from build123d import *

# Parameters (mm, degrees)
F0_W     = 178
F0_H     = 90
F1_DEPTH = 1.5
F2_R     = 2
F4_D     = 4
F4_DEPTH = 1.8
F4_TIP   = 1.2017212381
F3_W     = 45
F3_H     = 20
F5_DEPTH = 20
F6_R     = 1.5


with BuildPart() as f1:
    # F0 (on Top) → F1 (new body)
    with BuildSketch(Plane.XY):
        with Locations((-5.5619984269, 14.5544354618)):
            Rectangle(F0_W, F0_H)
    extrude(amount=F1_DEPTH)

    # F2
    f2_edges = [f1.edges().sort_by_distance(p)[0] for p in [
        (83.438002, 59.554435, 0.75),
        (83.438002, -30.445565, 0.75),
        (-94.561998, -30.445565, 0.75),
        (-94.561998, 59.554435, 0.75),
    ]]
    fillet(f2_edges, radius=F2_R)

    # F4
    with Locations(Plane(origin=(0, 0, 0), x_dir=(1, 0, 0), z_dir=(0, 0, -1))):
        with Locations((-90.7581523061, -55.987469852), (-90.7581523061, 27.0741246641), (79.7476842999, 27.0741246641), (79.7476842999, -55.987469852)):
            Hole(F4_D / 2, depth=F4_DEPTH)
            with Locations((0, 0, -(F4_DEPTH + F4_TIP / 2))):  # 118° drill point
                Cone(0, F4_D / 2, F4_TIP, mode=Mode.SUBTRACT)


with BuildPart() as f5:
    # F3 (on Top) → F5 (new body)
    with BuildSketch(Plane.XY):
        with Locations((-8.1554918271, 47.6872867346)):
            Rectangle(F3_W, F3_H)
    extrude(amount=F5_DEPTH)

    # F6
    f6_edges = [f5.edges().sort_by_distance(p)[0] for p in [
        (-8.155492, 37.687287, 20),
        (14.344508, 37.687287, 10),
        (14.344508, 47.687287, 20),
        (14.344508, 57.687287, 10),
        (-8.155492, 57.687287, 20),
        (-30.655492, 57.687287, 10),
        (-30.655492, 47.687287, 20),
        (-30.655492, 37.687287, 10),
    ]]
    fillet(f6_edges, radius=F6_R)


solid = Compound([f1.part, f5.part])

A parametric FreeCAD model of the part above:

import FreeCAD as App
import Part
import Sketcher
from FreeCAD import Vector
Q = App.Units.Quantity


def edges_at(feature, points):
    """Names of the edges that pass closest to the given points."""
    edges = feature.Shape.Edges
    near = lambda p: min(range(len(edges)), key=lambda i: edges[i].distToShape(Part.Vertex(*p))[0])
    return sorted({f"Edge{near(p) + 1}" for p in points})


def add_polygon(sketch, points):
    """Adds a closed chain of lines whose ends are joined by coincident constraints."""
    first, n = sketch.GeometryCount, len(points)
    for a, b in zip(points, points[1:] + points[:1]):
        sketch.addGeometry(Part.LineSegment(App.Vector(*a, 0), App.Vector(*b, 0)), False)
    for i in range(n):
        sketch.addConstraint(Sketcher.Constraint("Coincident", first + i, 2, first + (i + 1) % n, 1))

doc = App.newDocument("Part")
body = doc.addObject("PartDesign::Body", "Body")

sketch1 = doc.addObject("Sketcher::SketchObject", "Sketch")
body.addObject(sketch1)
sketch1.AttachmentSupport = (doc.XY_Plane, [""])
sketch1.MapMode = "FlatFace"
add_polygon(sketch1, [(-95, 60), (-95, -30), (83, -30), (83, 60)])
sketch1.addConstraint(Sketcher.Constraint("Vertical", 0))
sketch1.addConstraint(Sketcher.Constraint("Horizontal", 1))
sketch1.addConstraint(Sketcher.Constraint("Vertical", 2))
sketch1.addConstraint(Sketcher.Constraint("Horizontal", 3))
sketch1.addConstraint(Sketcher.Constraint("DistanceX", 1, 1, 1, 2, Q("178 mm")))
sketch1.addConstraint(Sketcher.Constraint("DistanceY", 0, 2, 0, 1, Q("90 mm")))
sketch1.addConstraint(Sketcher.Constraint("DistanceX", 0, 2, -1, 1, Q("94.561998 mm")))
sketch1.addConstraint(Sketcher.Constraint("DistanceY", 0, 2, -1, 1, Q("30.445565 mm")))
pad1 = doc.addObject("PartDesign::Pad", "Pad")
body.addObject(pad1)
pad1.Profile = sketch1
pad1.Length = 1.5
doc.recompute()

fillet = doc.addObject("PartDesign::Fillet", "Fillet")
body.addObject(fillet)
fillet.Base = (pad1, edges_at(pad1, [
    (83.438, 59.554, 0.75),
    (83.438, -30.446, 0.75),
    (-94.562, -30.446, 0.75),
    (-94.562, 59.554, 0.75),
]))
fillet.Radius = 2

sketch2 = doc.addObject("Sketcher::SketchObject", "Sketch001")
body.addObject(sketch2)
sketch2.AttachmentSupport = (doc.XY_Plane, [""])
sketch2.MapMode = "FlatFace"
sketch2.addGeometry(Part.Circle(Vector(-90.8, 56, 0), Vector(0, 0, 1), 2), False)
sketch2.addGeometry(Part.Circle(Vector(-90.8, -27.1, 0), Vector(0, 0, 1), 2), False)
sketch2.addGeometry(Part.Circle(Vector(79.7, -27.1, 0), Vector(0, 0, 1), 2), False)
sketch2.addGeometry(Part.Circle(Vector(79.7, 56, 0), Vector(0, 0, 1), 2), False)
sketch2.addConstraint(Sketcher.Constraint("Equal", 0, 1))
sketch2.addConstraint(Sketcher.Constraint("Equal", 1, 2))
sketch2.addConstraint(Sketcher.Constraint("Equal", 2, 3))
sketch2.addConstraint(Sketcher.Constraint("Horizontal", 1, 3, 2, 3))
sketch2.addConstraint(Sketcher.Constraint("Horizontal", 0, 3, 3, 3))
sketch2.addConstraint(Sketcher.Constraint("Vertical", 0, 3, 1, 3))
sketch2.addConstraint(Sketcher.Constraint("Vertical", 2, 3, 3, 3))
sketch2.addConstraint(Sketcher.Constraint("Diameter", 0, Q("4 mm")))
sketch2.addConstraint(Sketcher.Constraint("DistanceY", -1, 1, 0, 3, Q("55.98747 mm")))
sketch2.addConstraint(Sketcher.Constraint("DistanceX", 0, 3, -1, 1, Q("90.758152 mm")))
sketch2.addConstraint(Sketcher.Constraint("DistanceY", 1, 3, -1, 1, Q("27.074125 mm")))
sketch2.addConstraint(Sketcher.Constraint("DistanceX", -1, 1, 2, 3, Q("79.747684 mm")))
doc.recompute()
hole = doc.addObject("PartDesign::Hole", "Hole")
body.addObject(hole)
hole.Profile = sketch2
hole.ThreadType = "None"
hole.Diameter = 4
hole.DepthType = "Dimension"
hole.Depth = 1.8
hole.DrillPoint = "Angled"
hole.DrillPointAngle = 118
hole.Reversed = True
body2 = doc.addObject("PartDesign::Body", "Body001")

sketch3 = doc.addObject("Sketcher::SketchObject", "Sketch002")
body2.addObject(sketch3)
sketch3.AttachmentSupport = (doc.getObject("XY_Plane001"), [""])
sketch3.MapMode = "FlatFace"
add_polygon(sketch3, [(-31, 58), (-31, 38), (14, 38), (14, 58)])
sketch3.addConstraint(Sketcher.Constraint("Vertical", 0))
sketch3.addConstraint(Sketcher.Constraint("Horizontal", 1))
sketch3.addConstraint(Sketcher.Constraint("Vertical", 2))
sketch3.addConstraint(Sketcher.Constraint("Horizontal", 3))
sketch3.addConstraint(Sketcher.Constraint("DistanceX", 1, 1, 1, 2, Q("45 mm")))
sketch3.addConstraint(Sketcher.Constraint("DistanceY", 0, 2, 0, 1, Q("20 mm")))
sketch3.addConstraint(Sketcher.Constraint("DistanceX", 0, 2, -1, 1, Q("30.655492 mm")))
sketch3.addConstraint(Sketcher.Constraint("DistanceY", -1, 1, 0, 2, Q("37.687287 mm")))
pad2 = doc.addObject("PartDesign::Pad", "Pad001")
body2.addObject(pad2)
pad2.Profile = sketch3
pad2.Length = 20
doc.recompute()

fillet2 = doc.addObject("PartDesign::Fillet", "Fillet001")
body2.addObject(fillet2)
fillet2.Base = (pad2, edges_at(pad2, [
    (-8.155, 37.687, 20),
    (14.345, 37.687, 10),
    (14.345, 47.687, 20),
    (14.345, 57.687, 10),
    (-8.155, 57.687, 20),
    (-30.655, 57.687, 10),
    (-30.655, 47.687, 20),
    (-30.655, 37.687, 10),
]))
fillet2.Radius = 1.5

doc.recompute()
